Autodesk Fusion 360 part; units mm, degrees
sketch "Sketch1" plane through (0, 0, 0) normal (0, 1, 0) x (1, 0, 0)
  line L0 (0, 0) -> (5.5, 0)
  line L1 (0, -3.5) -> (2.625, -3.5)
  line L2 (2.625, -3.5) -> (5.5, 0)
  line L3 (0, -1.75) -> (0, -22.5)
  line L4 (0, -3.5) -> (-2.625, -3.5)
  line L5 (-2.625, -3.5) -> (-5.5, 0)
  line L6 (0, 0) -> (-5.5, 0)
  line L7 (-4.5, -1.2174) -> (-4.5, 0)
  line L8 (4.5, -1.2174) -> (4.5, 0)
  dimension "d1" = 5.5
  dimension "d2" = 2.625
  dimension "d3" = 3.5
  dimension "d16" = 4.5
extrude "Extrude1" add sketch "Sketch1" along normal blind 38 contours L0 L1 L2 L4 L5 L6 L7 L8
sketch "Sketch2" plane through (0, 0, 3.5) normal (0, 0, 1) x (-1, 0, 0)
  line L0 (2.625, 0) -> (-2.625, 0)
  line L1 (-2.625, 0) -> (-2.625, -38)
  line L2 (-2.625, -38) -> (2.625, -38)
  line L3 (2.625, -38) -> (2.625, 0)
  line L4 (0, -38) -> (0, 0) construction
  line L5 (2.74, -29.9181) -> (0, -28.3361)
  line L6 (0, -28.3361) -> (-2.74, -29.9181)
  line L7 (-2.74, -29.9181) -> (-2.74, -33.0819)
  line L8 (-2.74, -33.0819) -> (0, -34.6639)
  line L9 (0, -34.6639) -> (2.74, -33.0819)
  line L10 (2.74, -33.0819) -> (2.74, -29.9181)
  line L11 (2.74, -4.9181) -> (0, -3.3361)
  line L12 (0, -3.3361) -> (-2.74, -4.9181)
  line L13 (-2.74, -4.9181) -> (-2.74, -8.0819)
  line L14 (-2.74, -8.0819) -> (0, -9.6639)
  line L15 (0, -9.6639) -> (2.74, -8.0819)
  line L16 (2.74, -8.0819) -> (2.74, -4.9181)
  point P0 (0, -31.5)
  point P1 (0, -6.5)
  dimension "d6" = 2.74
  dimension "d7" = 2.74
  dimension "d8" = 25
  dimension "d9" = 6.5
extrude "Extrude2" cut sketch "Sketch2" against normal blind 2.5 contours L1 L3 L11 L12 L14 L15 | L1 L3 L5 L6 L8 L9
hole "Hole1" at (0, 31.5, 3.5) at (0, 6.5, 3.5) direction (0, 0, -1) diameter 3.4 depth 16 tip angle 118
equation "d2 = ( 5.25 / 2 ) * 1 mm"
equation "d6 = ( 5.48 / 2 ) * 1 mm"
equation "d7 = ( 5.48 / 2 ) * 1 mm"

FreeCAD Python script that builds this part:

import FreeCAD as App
import Part
import Sketcher
Q = App.Units.Quantity


def add_polygon(sketch, points):
    """Adds a closed chain of lines whose ends are joined by coincident constraints."""
    first, n = sketch.GeometryCount, len(points)
    for a, b in zip(points, points[1:] + points[:1]):
        sketch.addGeometry(Part.LineSegment(App.Vector(*a, 0), App.Vector(*b, 0)), False)
    for i in range(n):
        sketch.addConstraint(Sketcher.Constraint("Coincident", first + i, 2, first + (i + 1) % n, 1))

doc = App.newDocument("Part")
body = doc.addObject("PartDesign::Body", "Body")

# Sketch on XZ plane
sketch1 = body.newObject("Sketcher::SketchObject", "Sketch")
sketch1.AttachmentSupport = (doc.getObject("XZ_Plane"), [""])
sketch1.MapMode = "FlatFace"
add_polygon(sketch1, [(4.5, 0), (-4.5, 0), (-4.5, 1.2), (-2.6, 3.5), (2.6, 3.5), (4.5, 1.2)])  # lines 0-5
sketch1.addConstraint([
    Sketcher.Constraint("Horizontal", 0),
    Sketcher.Constraint("Vertical", 1),
    Sketcher.Constraint("Horizontal", 3),
    Sketcher.Constraint("Vertical", 5),
    Sketcher.Constraint("Symmetric", 0, 2, 5, 2, -1, 1),
    Sketcher.Constraint("Horizontal", 1, 2, 4, 2),
    Sketcher.Constraint("Equal", 2, 4),
    Sketcher.Constraint("DistanceX", 0, 2, -1, 1, 4.5),
    Sketcher.Constraint("DistanceY", -1, 1, 2, 2, 3.5),
    Sketcher.Constraint("DistanceX", 2, 2, -1, 1, 2.625),
    Sketcher.Constraint("Angle", 2, Q("50.5993 deg")),
])
pad1 = body.newObject("PartDesign::Pad", "Pad")
pad1.Profile = sketch1
pad1.Length = 38
pad1.Reversed = True

# Sketch on XY plane
sketch2 = body.newObject("Sketcher::SketchObject", "Sketch001")
sketch2.AttachmentSupport = (doc.getObject("XY_Plane"), [""])
sketch2.MapMode = "FlatFace"
sketch2.AttachmentOffset = App.Placement(App.Vector(0, 0, 3.5), App.Rotation())
add_polygon(sketch2, [(-2.6, 8.1), (-2.6, 4.9), (0, 3.3), (2.6, 4.9), (2.6, 8.1), (0, 9.7)])  # lines 0-5
add_polygon(sketch2, [(-2.6, 33.1), (-2.6, 29.9), (0, 28.3), (2.6, 29.9), (2.6, 33.1), (0, 34.7)])  # lines 6-11
sketch2.addConstraint([
    Sketcher.Constraint("Vertical", 0),
    Sketcher.Constraint("Vertical", 3),
    Sketcher.Constraint("Vertical", 6),
    Sketcher.Constraint("Vertical", 9),
    Sketcher.Constraint("Symmetric", 0, 2, 2, 2, -2),
    Sketcher.Constraint("Symmetric", 6, 2, 8, 2, -2),
    Sketcher.Constraint("PointOnObject", 1, 2, -2),
    Sketcher.Constraint("PointOnObject", 4, 2, -2),
    Sketcher.Constraint("PointOnObject", 7, 2, -2),
    Sketcher.Constraint("PointOnObject", 10, 2, -2),
    Sketcher.Constraint("Parallel", 1, 4),
    Sketcher.Constraint("Parallel", 2, 5),
    Sketcher.Constraint("Parallel", 4, 7),
    Sketcher.Constraint("Parallel", 7, 10),
    Sketcher.Constraint("Parallel", 8, 11),
    Sketcher.Constraint("Vertical", 5, 2, 6, 2),
    Sketcher.Constraint("Equal", 3, 6),
    Sketcher.Constraint("DistanceY", 0, 2, 6, 2, 25.0),
    Sketcher.Constraint("Angle", 1, Q("-30.001 deg")),
    Sketcher.Constraint("DistanceX", 0, 2, 2, 2, 5.25),
    Sketcher.Constraint("DistanceY", 0, 2, 0, 1, 3.2966),
    Sketcher.Constraint("DistanceY", -1, 1, 1, 2, 3.336),
])
pocket1 = body.newObject("PartDesign::Pocket", "Pocket")
pocket1.Profile = sketch2
pocket1.Length = 2.5

# Sketch on XY plane
sketch3 = body.newObject("Sketcher::SketchObject", "Sketch002")
sketch3.AttachmentSupport = (doc.getObject("XY_Plane"), [""])
sketch3.MapMode = "FlatFace"
sketch3.AttachmentOffset = App.Placement(App.Vector(0, 0, 3.5), App.Rotation())
sketch3.addGeometry([
    Part.Circle(App.Vector(0, 31.5, 0), App.Vector(0, 0, 1), 1.7),
    Part.Circle(App.Vector(0, 6.5, 0), App.Vector(0, 0, 1), 1.7),
], False)
sketch3.addConstraint([
    Sketcher.Constraint("Equal", 0, 1),
    Sketcher.Constraint("PointOnObject", 0, 3, -2),
    Sketcher.Constraint("PointOnObject", 1, 3, -2),
    Sketcher.Constraint("Diameter", 0, 3.4),
    Sketcher.Constraint("DistanceY", 1, 3, 0, 3, 25.0),
    Sketcher.Constraint("DistanceY", -1, 1, 0, 3, 31.5),
])
doc.recompute()
hole = body.newObject("PartDesign::Hole", "Hole")
hole.Profile = sketch3
hole.ThreadType = "None"
hole.Diameter = 3.4
hole.DepthType = "Dimension"
hole.Depth = 16
hole.DrillPoint = "Angled"
hole.DrillPointAngle = 118

doc.recompute()
